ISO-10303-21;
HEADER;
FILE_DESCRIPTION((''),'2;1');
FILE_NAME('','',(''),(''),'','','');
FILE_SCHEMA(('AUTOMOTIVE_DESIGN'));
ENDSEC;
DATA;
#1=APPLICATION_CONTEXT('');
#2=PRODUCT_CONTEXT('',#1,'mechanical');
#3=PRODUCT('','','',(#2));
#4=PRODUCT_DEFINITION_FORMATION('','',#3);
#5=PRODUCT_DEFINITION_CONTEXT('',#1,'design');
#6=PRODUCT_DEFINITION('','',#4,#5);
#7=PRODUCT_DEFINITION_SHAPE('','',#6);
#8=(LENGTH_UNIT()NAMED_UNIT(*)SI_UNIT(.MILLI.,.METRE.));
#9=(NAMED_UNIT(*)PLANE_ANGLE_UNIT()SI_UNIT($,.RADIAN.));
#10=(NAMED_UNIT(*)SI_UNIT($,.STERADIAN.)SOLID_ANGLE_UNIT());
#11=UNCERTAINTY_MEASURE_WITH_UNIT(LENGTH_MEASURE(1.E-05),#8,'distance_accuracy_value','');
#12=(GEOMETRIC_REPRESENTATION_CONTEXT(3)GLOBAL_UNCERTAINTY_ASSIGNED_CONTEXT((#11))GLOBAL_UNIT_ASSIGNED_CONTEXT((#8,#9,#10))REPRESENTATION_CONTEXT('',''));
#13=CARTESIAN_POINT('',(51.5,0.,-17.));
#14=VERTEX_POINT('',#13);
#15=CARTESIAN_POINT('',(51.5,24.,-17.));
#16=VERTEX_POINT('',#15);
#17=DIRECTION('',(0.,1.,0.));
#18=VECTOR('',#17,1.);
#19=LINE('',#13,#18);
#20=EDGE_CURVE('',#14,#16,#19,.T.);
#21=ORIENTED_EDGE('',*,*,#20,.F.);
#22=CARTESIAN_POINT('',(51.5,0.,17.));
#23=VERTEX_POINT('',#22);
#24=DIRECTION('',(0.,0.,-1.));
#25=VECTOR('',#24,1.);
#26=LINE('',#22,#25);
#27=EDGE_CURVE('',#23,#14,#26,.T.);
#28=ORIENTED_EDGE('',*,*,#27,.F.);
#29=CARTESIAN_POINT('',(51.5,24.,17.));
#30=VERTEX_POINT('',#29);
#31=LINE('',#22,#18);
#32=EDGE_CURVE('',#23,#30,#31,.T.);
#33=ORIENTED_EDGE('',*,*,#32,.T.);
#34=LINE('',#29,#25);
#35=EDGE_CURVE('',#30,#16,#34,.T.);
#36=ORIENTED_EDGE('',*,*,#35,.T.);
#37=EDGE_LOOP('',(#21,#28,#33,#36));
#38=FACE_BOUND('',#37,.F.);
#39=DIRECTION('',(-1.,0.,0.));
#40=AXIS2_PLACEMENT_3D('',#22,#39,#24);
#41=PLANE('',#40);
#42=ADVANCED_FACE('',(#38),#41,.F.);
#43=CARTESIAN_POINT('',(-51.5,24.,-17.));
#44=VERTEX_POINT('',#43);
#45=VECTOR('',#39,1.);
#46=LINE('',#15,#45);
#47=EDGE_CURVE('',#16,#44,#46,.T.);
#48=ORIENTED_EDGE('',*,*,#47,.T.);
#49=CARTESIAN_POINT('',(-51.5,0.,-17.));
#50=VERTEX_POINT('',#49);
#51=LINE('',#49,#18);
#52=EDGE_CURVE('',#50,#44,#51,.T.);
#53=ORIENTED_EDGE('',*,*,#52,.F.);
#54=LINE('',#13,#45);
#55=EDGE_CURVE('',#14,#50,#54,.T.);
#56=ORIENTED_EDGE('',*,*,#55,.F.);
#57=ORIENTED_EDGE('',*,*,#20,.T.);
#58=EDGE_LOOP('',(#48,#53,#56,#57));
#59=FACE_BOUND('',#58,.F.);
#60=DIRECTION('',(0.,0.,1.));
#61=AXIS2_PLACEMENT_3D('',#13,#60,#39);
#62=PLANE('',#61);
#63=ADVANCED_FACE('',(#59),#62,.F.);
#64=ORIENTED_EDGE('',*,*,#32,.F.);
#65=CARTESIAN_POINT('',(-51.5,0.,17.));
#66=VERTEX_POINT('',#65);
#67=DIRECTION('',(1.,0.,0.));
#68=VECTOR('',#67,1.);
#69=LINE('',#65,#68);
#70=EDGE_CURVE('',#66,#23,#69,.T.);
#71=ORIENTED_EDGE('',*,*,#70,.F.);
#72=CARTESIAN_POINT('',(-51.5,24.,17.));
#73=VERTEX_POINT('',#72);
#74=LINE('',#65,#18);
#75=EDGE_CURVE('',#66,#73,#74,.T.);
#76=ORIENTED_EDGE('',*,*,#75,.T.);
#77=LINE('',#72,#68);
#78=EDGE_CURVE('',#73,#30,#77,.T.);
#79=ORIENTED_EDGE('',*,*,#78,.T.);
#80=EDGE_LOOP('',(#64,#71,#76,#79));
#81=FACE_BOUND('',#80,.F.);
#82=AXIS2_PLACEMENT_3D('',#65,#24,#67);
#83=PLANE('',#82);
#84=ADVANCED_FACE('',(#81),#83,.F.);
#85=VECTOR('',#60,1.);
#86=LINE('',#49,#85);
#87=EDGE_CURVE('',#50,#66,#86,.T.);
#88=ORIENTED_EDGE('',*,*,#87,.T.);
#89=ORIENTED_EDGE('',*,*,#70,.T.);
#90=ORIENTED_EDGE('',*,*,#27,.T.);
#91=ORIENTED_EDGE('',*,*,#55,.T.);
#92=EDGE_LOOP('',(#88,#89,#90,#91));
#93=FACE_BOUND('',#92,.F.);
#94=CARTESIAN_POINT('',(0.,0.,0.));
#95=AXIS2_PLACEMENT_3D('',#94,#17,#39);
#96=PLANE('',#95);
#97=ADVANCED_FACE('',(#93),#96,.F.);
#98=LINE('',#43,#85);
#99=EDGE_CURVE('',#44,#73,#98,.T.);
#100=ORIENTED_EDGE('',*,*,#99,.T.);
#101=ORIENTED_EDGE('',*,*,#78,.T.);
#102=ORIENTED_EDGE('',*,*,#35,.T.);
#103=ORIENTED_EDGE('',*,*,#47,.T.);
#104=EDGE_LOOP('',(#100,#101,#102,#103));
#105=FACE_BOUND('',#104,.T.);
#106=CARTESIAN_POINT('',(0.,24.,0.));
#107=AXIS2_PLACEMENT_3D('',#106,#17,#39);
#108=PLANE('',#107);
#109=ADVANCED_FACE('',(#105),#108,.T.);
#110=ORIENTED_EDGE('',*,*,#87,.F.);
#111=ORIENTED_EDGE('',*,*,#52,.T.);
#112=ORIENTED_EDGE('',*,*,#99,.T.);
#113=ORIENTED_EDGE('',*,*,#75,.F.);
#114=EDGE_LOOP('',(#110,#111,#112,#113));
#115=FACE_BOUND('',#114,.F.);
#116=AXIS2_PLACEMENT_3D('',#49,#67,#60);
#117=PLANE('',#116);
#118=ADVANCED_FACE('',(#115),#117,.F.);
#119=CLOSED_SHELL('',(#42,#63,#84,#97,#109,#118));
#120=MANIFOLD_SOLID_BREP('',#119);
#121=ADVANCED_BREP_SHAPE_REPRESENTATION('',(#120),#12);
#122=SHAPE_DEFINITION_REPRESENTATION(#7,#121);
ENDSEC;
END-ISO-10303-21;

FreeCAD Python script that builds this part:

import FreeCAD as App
import Part
import Sketcher
from FreeCAD import Vector


def add_polygon(sketch, points):
    """Adds a closed chain of lines whose ends are joined by coincident constraints."""
    first, n = sketch.GeometryCount, len(points)
    for a, b in zip(points, points[1:] + points[:1]):
        sketch.addGeometry(Part.LineSegment(App.Vector(*a, 0), App.Vector(*b, 0)), False)
    for i in range(n):
        sketch.addConstraint(Sketcher.Constraint("Coincident", first + i, 2, first + (i + 1) % n, 1))

doc = App.newDocument("Part")
body = doc.addObject("PartDesign::Body", "Body")

sketch1 = doc.addObject("Sketcher::SketchObject", "Sketch")
body.addObject(sketch1)
sketch1.AttachmentSupport = (doc.XZ_Plane, [""])
sketch1.MapMode = "FlatFace"
add_polygon(sketch1, [(-52, -17), (-52, 17), (52, 17), (52, -17)])
sketch1.addConstraint([
    Sketcher.Constraint("Vertical", 0),
    Sketcher.Constraint("Horizontal", 1),
    Sketcher.Constraint("Vertical", 2),
    Sketcher.Constraint("Horizontal", 3),
    Sketcher.Constraint("Symmetric", 0, 2, 2, 2, -1, 1),
    Sketcher.Constraint("DistanceX", 1, 1, 1, 2, 103.0),
    Sketcher.Constraint("DistanceY", 0, 1, 0, 2, 34.0),
])
pad1 = doc.addObject("PartDesign::Pad", "Pad")
body.addObject(pad1)
pad1.Profile = sketch1
pad1.Length = 24
pad1.Reversed = True

doc.recompute()
